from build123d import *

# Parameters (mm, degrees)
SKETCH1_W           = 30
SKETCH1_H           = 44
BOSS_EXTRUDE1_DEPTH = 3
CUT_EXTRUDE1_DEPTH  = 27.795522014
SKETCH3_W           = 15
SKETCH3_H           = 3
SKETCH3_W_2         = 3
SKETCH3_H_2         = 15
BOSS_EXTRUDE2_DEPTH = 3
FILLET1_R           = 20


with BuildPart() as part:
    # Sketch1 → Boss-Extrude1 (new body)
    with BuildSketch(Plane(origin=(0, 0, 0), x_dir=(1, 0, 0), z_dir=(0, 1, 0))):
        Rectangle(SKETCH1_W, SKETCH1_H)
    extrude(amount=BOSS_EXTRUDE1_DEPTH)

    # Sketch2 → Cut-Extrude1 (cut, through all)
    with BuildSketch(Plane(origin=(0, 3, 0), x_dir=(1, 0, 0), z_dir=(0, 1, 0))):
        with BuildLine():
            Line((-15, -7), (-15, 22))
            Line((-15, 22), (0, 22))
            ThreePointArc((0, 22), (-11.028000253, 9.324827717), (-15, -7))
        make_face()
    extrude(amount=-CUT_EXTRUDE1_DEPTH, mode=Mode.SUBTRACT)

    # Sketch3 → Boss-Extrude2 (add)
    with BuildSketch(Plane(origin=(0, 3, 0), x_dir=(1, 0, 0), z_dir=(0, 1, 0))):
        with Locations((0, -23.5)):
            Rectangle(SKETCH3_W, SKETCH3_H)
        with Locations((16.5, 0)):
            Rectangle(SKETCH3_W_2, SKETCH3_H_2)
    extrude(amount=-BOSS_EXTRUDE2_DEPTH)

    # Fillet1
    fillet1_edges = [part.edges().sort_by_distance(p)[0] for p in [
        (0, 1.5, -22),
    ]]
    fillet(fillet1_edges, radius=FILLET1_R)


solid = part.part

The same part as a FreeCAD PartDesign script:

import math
import FreeCAD as App
import Part
import Sketcher
from FreeCAD import Vector


def edges_at(feature, points):
    """Names of the edges that pass closest to the given points."""
    edges = feature.Shape.Edges
    near = lambda p: min(range(len(edges)), key=lambda i: edges[i].distToShape(Part.Vertex(*p))[0])
    return sorted({f"Edge{near(p) + 1}" for p in points})


def add_polygon(sketch, points):
    """Adds a closed chain of lines whose ends are joined by coincident constraints."""
    first, n = sketch.GeometryCount, len(points)
    for a, b in zip(points, points[1:] + points[:1]):
        sketch.addGeometry(Part.LineSegment(App.Vector(*a, 0), App.Vector(*b, 0)), False)
    for i in range(n):
        sketch.addConstraint(Sketcher.Constraint("Coincident", first + i, 2, first + (i + 1) % n, 1))

doc = App.newDocument("Part")
body = doc.addObject("PartDesign::Body", "Body")

sketch1 = body.newObject("Sketcher::SketchObject", "Sketch")
sketch1.AttachmentSupport = (doc.getObject("XZ_Plane"), [""])
sketch1.MapMode = "FlatFace"
add_polygon(sketch1, [(-15, -22), (-15, 22), (15, 22), (15, -22)])
sketch1.addConstraint([
    Sketcher.Constraint("Vertical", 0),
    Sketcher.Constraint("Horizontal", 1),
    Sketcher.Constraint("Vertical", 2),
    Sketcher.Constraint("Horizontal", 3),
    Sketcher.Constraint("Symmetric", 0, 2, 2, 2, -1, 1),
    Sketcher.Constraint("DistanceX", 1, 1, 1, 2, 30.0),
    Sketcher.Constraint("DistanceY", 0, 1, 0, 2, 44.0),
])
pad1 = body.newObject("PartDesign::Pad", "Pad")
pad1.Profile = sketch1
pad1.Length = 3
pad1.Reversed = True

sketch2 = body.newObject("Sketcher::SketchObject", "Sketch001")
sketch2.AttachmentSupport = (doc.getObject("XZ_Plane"), [""])
sketch2.MapMode = "FlatFace"
sketch2.AttachmentOffset = App.Placement(Vector(0, 0, -3), App.Rotation())
sketch2.addGeometry([
    Part.LineSegment(Vector(-15, -22, 0), Vector(-15, 7, 0)),
    Part.ArcOfCircle(Part.Circle(Vector(20.533333, 7, 0), Vector(0, 0, 1), 35.533333), math.radians(-180), math.radians(-125.300248)),
    Part.LineSegment(Vector(0, -22, 0), Vector(-15, -22, 0)),
], False)
sketch2.addConstraint([
    Sketcher.Constraint("Tangent", 0, 2, 1, 1),
    Sketcher.Constraint("Coincident", 1, 2, 2, 1),
    Sketcher.Constraint("Coincident", 2, 2, 0, 1),
    Sketcher.Constraint("Vertical", 0),
    Sketcher.Constraint("Horizontal", 2),
    Sketcher.Constraint("PointOnObject", 1, 2, -2),
    Sketcher.Constraint("DistanceX", 2, 2, 2, 1, 15.0),
    Sketcher.Constraint("DistanceY", 0, 1, 0, 2, 29.0),
    Sketcher.Constraint("DistanceY", -1, 1, 1, 3, 7.0),
])
pocket1 = body.newObject("PartDesign::Pocket", "Pocket")
pocket1.Profile = sketch2
pocket1.Type = "ThroughAll"
pocket1.Reversed = True

sketch3 = body.newObject("Sketcher::SketchObject", "Sketch002")
sketch3.AttachmentSupport = (doc.getObject("XZ_Plane"), [""])
sketch3.MapMode = "FlatFace"
sketch3.AttachmentOffset = App.Placement(Vector(0, 0, -3), App.Rotation())
add_polygon(sketch3, [(-7.5, 22), (-7.5, 25), (7.5, 25), (7.5, 22)])
add_polygon(sketch3, [(15, -7.5), (15, 7.5), (18, 7.5), (18, -7.5)])
sketch3.addConstraint([
    Sketcher.Constraint("Vertical", 0),
    Sketcher.Constraint("Horizontal", 1),
    Sketcher.Constraint("Vertical", 2),
    Sketcher.Constraint("Horizontal", 3),
    Sketcher.Constraint("Vertical", 4),
    Sketcher.Constraint("Horizontal", 5),
    Sketcher.Constraint("Vertical", 6),
    Sketcher.Constraint("Horizontal", 7),
    Sketcher.Constraint("Equal", 7, 0),
    Sketcher.Constraint("Equal", 3, 4),
    Sketcher.Constraint("DistanceX", 1, 1, 1, 2, 15.0),
    Sketcher.Constraint("DistanceX", 5, 1, 5, 2, 3.0),
    Sketcher.Constraint("DistanceY", -1, 1, 0, 2, 25.0),
    Sketcher.Constraint("DistanceX", -1, 1, 4, 2, 15.0),
    Sketcher.Constraint("DistanceX", 0, 2, -1, 1, 7.5),
    Sketcher.Constraint("DistanceY", -1, 1, 4, 2, 7.5),
])
pad2 = body.newObject("PartDesign::Pad", "Pad001")
pad2.Profile = sketch3
pad2.Length = 3
doc.recompute()

fillet = body.newObject("PartDesign::Fillet", "Fillet")
fillet.Base = (pad2, edges_at(pad2, [(0, 1.5, -22)]))
fillet.Radius = 20

doc.recompute()
